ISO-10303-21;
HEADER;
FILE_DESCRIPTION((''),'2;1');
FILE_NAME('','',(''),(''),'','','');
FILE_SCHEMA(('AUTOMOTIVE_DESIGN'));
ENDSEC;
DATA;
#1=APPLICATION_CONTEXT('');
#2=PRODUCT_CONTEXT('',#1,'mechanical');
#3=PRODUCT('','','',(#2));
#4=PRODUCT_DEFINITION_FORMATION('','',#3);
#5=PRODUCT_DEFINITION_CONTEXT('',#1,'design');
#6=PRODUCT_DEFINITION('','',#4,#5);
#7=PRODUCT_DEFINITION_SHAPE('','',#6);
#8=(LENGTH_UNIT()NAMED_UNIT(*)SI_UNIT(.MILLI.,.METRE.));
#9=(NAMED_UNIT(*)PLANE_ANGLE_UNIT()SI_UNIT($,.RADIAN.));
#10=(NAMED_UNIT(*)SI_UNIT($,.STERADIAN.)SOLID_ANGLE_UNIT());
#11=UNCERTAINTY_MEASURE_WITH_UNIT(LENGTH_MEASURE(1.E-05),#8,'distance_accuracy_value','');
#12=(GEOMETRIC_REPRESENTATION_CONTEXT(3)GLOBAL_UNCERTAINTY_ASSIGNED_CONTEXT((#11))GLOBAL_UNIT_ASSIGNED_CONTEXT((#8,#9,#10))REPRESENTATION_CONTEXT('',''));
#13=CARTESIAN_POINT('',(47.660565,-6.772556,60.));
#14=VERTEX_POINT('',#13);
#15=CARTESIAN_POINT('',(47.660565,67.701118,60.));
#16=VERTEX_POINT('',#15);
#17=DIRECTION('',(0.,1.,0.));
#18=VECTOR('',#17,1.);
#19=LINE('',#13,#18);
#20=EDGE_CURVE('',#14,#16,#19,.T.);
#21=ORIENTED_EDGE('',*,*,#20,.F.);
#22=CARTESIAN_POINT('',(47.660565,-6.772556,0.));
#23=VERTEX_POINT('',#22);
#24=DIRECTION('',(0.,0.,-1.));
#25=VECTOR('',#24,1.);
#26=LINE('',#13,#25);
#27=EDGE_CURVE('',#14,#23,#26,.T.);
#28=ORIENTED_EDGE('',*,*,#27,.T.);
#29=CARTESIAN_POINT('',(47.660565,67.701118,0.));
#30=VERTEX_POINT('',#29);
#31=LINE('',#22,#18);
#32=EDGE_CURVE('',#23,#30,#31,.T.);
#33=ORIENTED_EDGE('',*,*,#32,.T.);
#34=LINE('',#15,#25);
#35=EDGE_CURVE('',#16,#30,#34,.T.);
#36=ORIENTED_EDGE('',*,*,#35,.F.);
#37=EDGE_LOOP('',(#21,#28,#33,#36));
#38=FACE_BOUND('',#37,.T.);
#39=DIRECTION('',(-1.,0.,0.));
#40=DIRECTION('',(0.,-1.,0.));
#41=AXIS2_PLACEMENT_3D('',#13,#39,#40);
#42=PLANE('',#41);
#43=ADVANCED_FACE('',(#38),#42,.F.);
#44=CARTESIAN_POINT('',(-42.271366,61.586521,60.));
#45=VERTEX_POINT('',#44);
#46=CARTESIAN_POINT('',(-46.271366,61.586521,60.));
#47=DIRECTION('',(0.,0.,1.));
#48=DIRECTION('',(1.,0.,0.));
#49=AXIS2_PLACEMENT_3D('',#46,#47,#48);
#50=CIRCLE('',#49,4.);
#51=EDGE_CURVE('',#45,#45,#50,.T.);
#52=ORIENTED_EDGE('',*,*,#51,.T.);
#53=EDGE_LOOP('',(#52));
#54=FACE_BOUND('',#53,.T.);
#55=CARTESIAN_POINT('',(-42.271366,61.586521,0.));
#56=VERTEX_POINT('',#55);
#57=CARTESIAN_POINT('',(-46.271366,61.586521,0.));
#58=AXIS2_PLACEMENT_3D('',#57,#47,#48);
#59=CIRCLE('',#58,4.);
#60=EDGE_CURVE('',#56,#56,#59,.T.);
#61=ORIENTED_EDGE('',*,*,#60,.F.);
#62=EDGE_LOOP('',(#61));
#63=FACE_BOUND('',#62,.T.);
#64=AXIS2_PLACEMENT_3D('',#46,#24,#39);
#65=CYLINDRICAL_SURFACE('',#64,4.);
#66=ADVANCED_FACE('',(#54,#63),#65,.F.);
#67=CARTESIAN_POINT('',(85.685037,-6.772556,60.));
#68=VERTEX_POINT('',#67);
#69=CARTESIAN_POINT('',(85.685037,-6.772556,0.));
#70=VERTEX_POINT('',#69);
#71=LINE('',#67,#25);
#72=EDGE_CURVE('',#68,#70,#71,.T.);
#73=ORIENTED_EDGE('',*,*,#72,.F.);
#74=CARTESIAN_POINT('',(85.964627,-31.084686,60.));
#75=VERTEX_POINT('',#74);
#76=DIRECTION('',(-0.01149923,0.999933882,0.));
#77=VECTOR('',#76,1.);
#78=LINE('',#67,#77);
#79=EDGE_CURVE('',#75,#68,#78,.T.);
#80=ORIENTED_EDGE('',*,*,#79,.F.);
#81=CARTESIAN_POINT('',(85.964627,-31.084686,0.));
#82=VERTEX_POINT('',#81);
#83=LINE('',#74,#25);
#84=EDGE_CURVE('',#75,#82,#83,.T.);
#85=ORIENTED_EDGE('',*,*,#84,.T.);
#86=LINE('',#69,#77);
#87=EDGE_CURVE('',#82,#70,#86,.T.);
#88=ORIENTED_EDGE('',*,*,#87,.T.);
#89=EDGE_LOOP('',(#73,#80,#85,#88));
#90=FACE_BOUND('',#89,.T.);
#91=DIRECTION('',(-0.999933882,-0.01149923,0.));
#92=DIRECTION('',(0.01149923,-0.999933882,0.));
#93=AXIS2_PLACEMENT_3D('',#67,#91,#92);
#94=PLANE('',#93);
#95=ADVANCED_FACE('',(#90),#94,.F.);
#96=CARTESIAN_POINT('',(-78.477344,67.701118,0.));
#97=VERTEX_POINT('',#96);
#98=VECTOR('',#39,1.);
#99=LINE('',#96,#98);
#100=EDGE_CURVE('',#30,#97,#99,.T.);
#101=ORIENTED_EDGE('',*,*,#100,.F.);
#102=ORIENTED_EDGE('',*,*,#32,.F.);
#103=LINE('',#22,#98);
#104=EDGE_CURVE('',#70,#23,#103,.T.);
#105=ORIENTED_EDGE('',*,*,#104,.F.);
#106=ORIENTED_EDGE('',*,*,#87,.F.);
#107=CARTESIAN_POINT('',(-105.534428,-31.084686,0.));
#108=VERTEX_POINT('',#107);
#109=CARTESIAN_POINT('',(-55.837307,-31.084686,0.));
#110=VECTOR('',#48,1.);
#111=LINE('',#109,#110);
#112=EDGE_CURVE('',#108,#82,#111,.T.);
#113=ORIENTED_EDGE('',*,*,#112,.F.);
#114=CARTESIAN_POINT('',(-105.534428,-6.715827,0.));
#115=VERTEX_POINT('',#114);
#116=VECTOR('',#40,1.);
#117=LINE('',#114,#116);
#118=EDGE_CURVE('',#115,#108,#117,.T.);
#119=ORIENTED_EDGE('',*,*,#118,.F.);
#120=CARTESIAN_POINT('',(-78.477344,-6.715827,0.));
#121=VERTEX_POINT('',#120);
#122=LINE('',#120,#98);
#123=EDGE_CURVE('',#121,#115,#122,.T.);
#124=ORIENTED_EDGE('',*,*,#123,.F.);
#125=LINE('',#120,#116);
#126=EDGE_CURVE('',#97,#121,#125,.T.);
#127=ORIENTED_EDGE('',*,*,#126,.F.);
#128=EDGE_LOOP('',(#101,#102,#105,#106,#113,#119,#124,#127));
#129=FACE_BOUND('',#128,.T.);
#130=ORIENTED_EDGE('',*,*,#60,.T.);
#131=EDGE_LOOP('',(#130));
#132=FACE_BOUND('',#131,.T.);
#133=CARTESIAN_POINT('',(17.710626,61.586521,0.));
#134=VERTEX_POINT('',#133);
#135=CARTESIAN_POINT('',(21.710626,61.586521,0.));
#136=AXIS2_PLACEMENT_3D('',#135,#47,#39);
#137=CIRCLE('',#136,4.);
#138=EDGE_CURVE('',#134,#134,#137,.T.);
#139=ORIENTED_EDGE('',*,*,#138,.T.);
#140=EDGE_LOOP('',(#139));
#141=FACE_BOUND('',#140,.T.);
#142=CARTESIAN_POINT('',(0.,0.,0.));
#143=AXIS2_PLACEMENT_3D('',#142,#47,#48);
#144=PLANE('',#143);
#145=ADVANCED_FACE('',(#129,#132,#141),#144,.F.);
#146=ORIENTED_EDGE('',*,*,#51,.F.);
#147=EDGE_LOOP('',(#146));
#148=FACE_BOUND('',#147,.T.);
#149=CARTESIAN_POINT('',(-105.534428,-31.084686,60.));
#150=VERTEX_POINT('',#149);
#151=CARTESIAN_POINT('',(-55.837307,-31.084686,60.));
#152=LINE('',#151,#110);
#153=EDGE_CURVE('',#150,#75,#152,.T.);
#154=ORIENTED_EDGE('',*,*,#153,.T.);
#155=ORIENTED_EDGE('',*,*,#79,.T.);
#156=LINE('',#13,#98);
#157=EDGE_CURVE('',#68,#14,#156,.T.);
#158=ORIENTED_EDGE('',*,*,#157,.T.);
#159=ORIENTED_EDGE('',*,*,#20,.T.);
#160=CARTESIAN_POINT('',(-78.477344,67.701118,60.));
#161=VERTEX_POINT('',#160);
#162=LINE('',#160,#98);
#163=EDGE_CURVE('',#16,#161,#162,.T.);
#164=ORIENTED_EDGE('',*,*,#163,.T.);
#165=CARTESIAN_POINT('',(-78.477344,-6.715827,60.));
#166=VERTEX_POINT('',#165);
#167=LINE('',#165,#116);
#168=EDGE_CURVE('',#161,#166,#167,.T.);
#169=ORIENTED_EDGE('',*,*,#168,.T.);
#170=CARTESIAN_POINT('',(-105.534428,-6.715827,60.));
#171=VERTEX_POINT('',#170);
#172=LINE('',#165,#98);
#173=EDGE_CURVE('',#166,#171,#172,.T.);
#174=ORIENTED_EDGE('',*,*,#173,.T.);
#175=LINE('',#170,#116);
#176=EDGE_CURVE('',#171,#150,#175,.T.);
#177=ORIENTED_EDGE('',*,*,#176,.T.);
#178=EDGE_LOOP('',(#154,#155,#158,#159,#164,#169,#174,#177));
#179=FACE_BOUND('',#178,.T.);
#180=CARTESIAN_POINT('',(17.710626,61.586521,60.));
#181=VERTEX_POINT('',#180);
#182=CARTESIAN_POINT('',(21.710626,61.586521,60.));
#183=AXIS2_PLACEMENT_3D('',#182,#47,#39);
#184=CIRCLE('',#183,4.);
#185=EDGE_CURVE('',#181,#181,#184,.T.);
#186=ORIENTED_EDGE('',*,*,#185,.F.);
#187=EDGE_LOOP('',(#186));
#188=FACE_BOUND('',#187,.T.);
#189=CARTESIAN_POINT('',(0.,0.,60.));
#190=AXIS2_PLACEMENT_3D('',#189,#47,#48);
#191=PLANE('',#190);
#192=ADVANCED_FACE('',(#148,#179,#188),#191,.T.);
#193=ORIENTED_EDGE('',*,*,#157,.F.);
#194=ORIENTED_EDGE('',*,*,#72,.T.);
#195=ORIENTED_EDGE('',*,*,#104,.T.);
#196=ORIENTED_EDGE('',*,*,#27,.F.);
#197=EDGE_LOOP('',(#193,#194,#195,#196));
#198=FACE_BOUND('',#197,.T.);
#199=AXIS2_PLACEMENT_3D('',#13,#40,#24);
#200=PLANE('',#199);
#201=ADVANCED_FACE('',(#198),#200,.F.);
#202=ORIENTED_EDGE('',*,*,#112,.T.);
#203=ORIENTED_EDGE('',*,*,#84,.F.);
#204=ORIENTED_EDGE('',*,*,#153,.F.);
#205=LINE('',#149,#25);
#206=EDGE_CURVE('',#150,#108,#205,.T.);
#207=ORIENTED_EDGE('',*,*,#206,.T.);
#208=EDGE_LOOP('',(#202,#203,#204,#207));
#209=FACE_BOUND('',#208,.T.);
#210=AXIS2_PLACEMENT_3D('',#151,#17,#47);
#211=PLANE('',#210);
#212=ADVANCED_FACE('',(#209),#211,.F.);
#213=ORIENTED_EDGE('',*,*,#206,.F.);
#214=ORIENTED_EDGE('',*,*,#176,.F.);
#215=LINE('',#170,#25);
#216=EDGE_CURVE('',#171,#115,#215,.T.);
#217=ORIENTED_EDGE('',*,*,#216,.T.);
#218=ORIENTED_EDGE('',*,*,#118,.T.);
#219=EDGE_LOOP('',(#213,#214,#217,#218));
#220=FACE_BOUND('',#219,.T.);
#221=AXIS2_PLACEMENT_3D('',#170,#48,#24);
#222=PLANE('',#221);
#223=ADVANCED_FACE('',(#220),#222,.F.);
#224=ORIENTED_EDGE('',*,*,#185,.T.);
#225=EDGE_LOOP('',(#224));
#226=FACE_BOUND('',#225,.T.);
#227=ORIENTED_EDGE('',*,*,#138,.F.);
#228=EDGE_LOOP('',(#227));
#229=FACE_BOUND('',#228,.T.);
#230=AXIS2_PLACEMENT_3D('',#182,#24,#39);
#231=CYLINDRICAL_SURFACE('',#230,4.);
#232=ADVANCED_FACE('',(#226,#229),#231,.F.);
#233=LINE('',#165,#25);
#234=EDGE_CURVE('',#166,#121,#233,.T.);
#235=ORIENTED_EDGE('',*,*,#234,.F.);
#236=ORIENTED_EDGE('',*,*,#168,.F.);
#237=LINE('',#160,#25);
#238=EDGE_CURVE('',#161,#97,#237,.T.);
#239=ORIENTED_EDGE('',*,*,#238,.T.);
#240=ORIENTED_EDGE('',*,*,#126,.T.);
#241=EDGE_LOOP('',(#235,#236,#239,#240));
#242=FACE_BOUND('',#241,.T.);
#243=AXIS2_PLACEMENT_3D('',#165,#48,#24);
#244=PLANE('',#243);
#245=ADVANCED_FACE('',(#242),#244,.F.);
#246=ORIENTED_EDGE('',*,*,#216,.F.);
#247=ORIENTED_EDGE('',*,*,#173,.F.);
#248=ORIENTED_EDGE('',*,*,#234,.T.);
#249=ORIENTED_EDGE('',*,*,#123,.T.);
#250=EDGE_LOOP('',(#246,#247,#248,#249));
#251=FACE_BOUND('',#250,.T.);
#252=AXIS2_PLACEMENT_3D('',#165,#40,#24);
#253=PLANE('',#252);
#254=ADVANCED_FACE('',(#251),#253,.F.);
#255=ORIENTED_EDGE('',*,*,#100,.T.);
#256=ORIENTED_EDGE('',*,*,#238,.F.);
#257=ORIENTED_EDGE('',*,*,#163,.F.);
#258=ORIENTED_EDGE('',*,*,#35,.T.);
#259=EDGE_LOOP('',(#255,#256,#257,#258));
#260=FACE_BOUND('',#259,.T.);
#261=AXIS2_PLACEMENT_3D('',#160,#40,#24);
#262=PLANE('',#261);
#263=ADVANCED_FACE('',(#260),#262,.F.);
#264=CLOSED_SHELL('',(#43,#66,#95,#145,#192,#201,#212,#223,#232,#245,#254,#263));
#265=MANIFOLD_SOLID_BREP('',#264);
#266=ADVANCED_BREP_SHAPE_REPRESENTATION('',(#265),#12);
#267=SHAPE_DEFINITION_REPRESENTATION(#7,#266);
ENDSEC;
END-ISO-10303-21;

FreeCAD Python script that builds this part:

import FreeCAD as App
import Part
import Sketcher
from FreeCAD import Vector

doc = App.newDocument("Part")
params = doc.addObject("Spreadsheet::Sheet", "Params")
for row, (alias, value) in enumerate([
    ("sketch1_diameter", "8 mm"),
    ("pad1_length", "60 mm"),
], start=1):
    params.set(f"A{row}", alias)
    params.set(f"B{row}", "=" + value)
    params.setAlias(f"B{row}", alias)

body = doc.addObject("PartDesign::Body", "Body")

# Sketch on XY plane
sketch1 = body.newObject("Sketcher::SketchObject", "Sketch")
sketch1.AttachmentSupport = (doc.getObject("XY_Plane"), [""])
sketch1.MapMode = "FlatFace"
sketch1.addGeometry([
    Part.LineSegment(Vector(-78.477344, -6.715827, 0), Vector(-105.534428, -6.715827, 0)),  # 0
    Part.LineSegment(Vector(-105.534428, -6.715827, 0), Vector(-105.534428, -31.084686, 0)),  # 1
    Part.LineSegment(Vector(-105.534428, -31.084686, 0), Vector(85.964627, -31.084686, 0)),  # 2
    Part.LineSegment(Vector(85.964627, -31.084686, 0), Vector(85.685037, -6.772556, 0)),  # 3
    Part.LineSegment(Vector(85.685037, -6.772556, 0), Vector(47.660565, -6.772556, 0)),  # 4
    Part.LineSegment(Vector(47.660565, -6.772556, 0), Vector(47.660565, 67.701118, 0)),  # 5
    Part.LineSegment(Vector(47.660565, 67.701118, 0), Vector(-78.477344, 67.701118, 0)),  # 6
    Part.LineSegment(Vector(-78.477344, 67.701118, 0), Vector(-78.477344, -6.715827, 0)),  # 7
    Part.Circle(Vector(-46.271366, 61.586521, 0), Vector(0, 0, 1), 4),  # 8
    Part.Circle(Vector(21.710626, 61.586521, 0), Vector(0, 0, 1), 4),  # 9
], False)
sketch1.addConstraint([
    Sketcher.Constraint("Coincident", 0, 2, 1, 1),
    Sketcher.Constraint("Coincident", 1, 2, 2, 1),
    Sketcher.Constraint("Coincident", 2, 2, 3, 1),
    Sketcher.Constraint("Coincident", 3, 2, 4, 1),
    Sketcher.Constraint("Coincident", 4, 2, 5, 1),
    Sketcher.Constraint("Coincident", 5, 2, 6, 1),
    Sketcher.Constraint("Coincident", 6, 2, 7, 1),
    Sketcher.Constraint("Coincident", 7, 2, 0, 1),
    Sketcher.Constraint("Horizontal", 0),
    Sketcher.Constraint("Vertical", 1),
    Sketcher.Constraint("Horizontal", 2),
    Sketcher.Constraint("Horizontal", 4),
    Sketcher.Constraint("Vertical", 5),
    Sketcher.Constraint("Horizontal", 6),
    Sketcher.Constraint("Vertical", 7),
    Sketcher.Constraint("Equal", 8, 9),
    Sketcher.Constraint("Horizontal", 8, 3, 9, 3),
    Sketcher.Constraint("Diameter", 8, 8.0),
    Sketcher.Constraint("DistanceX", 9, 3, 2, 2, 64.254),
    Sketcher.Constraint("DistanceX", 6, 2, 6, 1, 126.137908),
    Sketcher.Constraint("DistanceY", 1, 2, 1, 1, 24.368859),
    Sketcher.Constraint("DistanceX", 0, 2, 0, 1, 27.057085),
    Sketcher.Constraint("DistanceX", 2, 1, 2, 2, 191.499055),
    Sketcher.Constraint("DistanceX", 4, 2, 4, 1, 38.024473),
    Sketcher.Constraint("DistanceY", 5, 1, 5, 2, 74.473674),
    Sketcher.Constraint("DistanceY", 7, 2, 7, 1, 74.416945),
    Sketcher.Constraint("DistanceY", -1, 1, 8, 3, 61.586521),
    Sketcher.Constraint("DistanceX", 0, 2, -1, 1, 105.534428),
    Sketcher.Constraint("DistanceX", 8, 3, 4, 2, 93.931931),
    Sketcher.Constraint("DistanceY", 0, 2, -1, 1, 6.715827),
])
sketch1.setExpression("Constraints[17]", "Params.sketch1_diameter")
pad1 = body.newObject("PartDesign::Pad", "Pad")
pad1.Profile = sketch1
pad1.setExpression("Length", "Params.pad1_length")

doc.recompute()
